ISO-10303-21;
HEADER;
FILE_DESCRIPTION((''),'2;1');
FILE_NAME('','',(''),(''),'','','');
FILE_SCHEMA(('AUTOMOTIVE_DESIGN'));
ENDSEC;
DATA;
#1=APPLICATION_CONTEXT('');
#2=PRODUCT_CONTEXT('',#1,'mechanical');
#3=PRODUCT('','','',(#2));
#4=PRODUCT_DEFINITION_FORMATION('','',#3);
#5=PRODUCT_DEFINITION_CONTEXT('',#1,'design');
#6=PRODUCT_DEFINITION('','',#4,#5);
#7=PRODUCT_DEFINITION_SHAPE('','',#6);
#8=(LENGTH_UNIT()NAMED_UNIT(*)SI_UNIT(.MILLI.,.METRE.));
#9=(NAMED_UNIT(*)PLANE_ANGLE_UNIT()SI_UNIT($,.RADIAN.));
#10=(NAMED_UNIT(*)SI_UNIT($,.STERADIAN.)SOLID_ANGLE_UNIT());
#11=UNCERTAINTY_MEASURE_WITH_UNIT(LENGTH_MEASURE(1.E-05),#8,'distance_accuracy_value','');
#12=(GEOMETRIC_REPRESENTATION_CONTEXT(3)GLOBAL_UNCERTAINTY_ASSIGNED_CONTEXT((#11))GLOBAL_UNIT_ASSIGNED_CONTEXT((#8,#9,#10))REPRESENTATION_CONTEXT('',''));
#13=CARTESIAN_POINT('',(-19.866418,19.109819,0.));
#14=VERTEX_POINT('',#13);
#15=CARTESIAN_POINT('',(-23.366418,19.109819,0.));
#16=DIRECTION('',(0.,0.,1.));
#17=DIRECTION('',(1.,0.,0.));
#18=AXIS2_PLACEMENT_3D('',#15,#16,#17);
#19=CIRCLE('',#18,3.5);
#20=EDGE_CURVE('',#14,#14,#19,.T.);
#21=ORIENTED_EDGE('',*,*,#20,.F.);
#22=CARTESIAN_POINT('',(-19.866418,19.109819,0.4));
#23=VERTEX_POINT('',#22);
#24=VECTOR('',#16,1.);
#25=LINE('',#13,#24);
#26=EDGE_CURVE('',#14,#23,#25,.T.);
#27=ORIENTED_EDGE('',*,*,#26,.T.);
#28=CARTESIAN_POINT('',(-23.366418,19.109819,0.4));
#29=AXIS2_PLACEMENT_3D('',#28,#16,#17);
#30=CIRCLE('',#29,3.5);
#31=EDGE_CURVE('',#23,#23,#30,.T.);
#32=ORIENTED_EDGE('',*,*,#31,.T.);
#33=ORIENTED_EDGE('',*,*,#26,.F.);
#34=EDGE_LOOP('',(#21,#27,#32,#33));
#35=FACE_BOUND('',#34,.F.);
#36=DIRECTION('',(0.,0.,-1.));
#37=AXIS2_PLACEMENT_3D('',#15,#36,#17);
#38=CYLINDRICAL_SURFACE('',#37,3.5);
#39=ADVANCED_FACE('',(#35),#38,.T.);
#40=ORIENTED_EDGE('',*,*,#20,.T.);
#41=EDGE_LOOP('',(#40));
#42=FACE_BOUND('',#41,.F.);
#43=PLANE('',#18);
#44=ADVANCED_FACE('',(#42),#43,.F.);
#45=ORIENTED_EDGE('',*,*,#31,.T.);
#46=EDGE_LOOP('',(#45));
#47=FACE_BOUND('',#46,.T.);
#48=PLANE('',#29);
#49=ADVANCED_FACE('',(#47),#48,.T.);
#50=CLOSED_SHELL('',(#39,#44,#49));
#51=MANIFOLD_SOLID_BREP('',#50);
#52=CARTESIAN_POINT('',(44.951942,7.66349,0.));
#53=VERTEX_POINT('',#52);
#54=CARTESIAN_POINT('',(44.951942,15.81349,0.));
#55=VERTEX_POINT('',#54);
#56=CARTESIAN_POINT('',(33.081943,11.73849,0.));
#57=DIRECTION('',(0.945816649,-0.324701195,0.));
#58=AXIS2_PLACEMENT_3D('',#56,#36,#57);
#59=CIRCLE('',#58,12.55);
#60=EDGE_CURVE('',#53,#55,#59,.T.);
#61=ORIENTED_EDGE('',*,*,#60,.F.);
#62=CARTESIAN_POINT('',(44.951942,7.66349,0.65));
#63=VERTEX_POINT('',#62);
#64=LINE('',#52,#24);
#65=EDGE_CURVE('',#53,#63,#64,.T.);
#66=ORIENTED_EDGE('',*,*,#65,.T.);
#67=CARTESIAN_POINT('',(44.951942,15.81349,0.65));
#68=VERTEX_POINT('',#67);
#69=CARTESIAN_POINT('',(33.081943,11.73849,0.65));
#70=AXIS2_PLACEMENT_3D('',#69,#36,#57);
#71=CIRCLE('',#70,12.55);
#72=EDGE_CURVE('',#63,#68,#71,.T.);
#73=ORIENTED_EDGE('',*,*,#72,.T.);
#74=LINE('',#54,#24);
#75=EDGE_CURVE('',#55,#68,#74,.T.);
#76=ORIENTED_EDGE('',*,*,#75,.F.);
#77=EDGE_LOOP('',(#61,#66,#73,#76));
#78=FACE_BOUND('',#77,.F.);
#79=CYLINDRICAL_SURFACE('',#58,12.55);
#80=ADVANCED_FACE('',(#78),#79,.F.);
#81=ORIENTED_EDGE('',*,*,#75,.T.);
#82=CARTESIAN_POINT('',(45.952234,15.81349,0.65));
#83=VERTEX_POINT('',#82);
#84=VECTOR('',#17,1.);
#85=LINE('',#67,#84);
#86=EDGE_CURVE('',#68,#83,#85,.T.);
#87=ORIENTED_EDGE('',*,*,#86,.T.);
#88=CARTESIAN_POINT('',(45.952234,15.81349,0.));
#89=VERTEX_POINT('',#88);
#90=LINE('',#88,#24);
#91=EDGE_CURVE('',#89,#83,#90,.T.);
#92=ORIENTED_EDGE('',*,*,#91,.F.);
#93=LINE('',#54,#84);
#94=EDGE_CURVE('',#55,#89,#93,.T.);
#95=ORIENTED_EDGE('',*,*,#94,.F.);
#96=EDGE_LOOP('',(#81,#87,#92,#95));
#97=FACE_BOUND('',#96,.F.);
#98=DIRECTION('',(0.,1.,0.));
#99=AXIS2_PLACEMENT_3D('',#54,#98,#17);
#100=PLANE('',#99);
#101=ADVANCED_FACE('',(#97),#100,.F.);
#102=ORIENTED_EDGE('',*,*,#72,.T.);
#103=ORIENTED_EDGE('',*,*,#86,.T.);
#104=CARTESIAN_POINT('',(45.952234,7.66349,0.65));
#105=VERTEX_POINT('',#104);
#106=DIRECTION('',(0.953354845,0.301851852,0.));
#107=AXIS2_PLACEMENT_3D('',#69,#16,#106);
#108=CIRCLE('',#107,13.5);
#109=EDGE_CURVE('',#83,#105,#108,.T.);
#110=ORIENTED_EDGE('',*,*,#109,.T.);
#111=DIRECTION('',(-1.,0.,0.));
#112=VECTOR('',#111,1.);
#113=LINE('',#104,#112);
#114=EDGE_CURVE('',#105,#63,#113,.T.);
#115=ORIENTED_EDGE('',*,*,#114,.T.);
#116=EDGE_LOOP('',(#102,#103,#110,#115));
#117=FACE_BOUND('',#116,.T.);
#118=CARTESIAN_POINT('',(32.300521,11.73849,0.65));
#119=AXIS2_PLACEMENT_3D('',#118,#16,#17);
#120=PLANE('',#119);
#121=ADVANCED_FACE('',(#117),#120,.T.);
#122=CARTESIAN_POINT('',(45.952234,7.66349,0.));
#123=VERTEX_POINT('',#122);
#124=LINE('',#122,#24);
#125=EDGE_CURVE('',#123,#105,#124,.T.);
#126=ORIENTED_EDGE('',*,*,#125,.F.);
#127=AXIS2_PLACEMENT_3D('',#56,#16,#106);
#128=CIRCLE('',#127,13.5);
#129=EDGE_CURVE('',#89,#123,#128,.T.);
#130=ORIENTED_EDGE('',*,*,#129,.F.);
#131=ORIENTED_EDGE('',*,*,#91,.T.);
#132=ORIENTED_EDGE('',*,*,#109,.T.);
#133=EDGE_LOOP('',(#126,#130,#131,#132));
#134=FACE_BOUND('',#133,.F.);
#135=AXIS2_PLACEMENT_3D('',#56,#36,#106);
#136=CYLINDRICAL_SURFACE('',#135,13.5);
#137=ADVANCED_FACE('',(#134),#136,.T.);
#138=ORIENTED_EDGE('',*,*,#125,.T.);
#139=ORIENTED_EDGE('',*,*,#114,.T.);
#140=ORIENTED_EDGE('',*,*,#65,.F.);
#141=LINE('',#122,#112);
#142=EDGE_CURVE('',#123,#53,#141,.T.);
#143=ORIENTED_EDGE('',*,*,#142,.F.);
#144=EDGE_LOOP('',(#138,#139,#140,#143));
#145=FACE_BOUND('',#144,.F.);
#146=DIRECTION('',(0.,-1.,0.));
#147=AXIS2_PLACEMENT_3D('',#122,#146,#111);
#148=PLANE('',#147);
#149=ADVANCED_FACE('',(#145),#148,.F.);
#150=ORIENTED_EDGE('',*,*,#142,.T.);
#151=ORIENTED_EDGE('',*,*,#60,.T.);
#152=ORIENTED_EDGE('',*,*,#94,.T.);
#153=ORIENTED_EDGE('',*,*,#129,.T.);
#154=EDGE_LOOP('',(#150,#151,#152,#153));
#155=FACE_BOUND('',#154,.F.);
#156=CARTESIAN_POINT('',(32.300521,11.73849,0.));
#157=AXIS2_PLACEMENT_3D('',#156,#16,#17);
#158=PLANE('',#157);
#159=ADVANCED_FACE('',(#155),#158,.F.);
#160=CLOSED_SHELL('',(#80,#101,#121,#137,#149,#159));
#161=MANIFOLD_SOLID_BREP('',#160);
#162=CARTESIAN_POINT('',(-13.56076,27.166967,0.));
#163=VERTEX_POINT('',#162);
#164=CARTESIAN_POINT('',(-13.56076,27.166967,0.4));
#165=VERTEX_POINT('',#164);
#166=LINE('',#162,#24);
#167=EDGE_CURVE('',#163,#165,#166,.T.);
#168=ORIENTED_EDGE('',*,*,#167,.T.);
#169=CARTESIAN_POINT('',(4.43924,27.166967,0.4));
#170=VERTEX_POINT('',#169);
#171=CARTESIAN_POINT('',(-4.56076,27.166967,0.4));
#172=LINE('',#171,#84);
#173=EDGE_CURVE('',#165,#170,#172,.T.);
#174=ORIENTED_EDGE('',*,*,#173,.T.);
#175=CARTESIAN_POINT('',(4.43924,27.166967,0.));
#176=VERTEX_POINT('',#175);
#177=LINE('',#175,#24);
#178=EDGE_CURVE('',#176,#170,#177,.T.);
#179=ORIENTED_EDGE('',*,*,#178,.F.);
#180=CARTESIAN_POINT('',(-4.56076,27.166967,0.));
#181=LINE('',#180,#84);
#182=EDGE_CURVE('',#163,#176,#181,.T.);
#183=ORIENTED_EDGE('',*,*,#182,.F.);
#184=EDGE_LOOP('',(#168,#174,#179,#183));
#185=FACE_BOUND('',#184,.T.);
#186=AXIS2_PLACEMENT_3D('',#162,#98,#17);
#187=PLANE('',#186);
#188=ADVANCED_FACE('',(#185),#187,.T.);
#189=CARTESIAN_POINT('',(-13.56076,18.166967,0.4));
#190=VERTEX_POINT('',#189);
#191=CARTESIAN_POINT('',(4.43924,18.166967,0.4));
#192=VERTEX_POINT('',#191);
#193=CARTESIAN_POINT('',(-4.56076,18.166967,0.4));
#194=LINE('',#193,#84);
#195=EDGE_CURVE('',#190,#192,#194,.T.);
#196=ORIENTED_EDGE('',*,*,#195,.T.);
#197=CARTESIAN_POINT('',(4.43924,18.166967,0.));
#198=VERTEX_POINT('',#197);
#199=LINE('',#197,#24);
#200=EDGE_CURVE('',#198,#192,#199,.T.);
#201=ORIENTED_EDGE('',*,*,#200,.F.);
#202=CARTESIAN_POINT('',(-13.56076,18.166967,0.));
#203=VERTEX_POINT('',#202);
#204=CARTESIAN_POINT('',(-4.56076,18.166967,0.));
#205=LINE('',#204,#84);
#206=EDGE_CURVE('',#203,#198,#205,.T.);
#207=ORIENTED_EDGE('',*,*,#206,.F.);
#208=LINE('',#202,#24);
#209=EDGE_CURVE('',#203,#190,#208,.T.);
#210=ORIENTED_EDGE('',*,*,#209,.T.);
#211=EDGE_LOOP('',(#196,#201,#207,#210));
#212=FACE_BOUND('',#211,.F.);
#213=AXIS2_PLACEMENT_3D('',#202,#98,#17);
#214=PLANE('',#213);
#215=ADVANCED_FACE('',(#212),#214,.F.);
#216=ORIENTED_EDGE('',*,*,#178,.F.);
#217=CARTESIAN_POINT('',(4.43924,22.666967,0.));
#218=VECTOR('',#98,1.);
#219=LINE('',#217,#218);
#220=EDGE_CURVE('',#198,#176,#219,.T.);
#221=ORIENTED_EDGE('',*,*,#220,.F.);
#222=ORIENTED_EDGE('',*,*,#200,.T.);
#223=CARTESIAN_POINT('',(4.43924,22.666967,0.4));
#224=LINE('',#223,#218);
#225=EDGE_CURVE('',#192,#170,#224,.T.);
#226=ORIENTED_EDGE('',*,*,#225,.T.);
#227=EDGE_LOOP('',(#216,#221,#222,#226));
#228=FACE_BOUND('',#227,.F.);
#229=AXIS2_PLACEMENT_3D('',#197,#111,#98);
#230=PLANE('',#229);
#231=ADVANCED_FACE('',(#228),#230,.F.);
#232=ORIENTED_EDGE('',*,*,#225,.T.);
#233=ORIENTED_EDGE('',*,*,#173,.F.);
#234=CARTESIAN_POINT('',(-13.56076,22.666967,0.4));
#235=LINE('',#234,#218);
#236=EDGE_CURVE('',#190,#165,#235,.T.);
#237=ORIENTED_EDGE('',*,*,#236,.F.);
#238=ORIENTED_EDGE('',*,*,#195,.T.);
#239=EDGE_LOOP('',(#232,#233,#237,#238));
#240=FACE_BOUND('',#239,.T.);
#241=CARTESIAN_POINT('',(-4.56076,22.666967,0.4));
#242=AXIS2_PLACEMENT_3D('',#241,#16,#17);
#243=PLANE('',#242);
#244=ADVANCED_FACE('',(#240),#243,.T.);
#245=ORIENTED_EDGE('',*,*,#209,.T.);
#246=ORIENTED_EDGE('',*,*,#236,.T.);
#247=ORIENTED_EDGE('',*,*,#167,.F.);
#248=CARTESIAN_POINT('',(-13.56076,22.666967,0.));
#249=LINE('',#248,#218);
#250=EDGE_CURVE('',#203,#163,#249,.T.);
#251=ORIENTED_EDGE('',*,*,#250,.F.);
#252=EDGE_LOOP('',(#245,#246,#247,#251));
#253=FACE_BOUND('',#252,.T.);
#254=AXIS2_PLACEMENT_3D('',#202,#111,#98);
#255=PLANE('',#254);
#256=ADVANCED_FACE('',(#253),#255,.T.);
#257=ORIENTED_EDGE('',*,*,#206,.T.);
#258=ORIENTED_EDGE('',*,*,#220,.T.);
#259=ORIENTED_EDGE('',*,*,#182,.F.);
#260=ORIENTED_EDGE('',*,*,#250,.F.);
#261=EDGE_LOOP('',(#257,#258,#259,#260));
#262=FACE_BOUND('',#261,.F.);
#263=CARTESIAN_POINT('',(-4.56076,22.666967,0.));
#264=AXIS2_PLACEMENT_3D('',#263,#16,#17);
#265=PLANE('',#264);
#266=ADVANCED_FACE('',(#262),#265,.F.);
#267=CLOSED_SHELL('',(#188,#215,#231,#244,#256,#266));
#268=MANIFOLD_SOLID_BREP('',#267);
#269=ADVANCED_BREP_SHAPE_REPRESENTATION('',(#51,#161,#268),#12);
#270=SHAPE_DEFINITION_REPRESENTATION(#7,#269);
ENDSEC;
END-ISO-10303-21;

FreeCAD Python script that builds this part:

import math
import FreeCAD as App
import Part
import Sketcher

V = App.Vector

doc = App.newDocument("Part")
body = doc.addObject("PartDesign::Body", "Body")

# Sketch on XY plane
sketch1 = doc.addObject("Sketcher::SketchObject", "Sketch")
body.addObject(sketch1)
sketch1.AttachmentSupport = (doc.XY_Plane, [""])
sketch1.MapMode = "FlatFace"
sketch1.addGeometry(Part.Circle(V(-23.4, 19.1, 0), V(0, 0, 1), 3.5), False)
sketch1.addConstraint(Sketcher.Constraint("Diameter", 0, 7.0))
sketch1.addConstraint(Sketcher.Constraint("DistanceX", 0, 3, -1, 1, 23.366418))
sketch1.addConstraint(Sketcher.Constraint("DistanceY", -1, 1, 0, 3, 19.109819))
pad1 = doc.addObject("PartDesign::Pad", "Pad")
body.addObject(pad1)
pad1.Profile = sketch1
pad1.Length = 0.4
body2 = doc.addObject("PartDesign::Body", "Body001")

# Sketch on XY plane
sketch2 = doc.addObject("Sketcher::SketchObject", "Sketch001")
body2.addObject(sketch2)
sketch2.AttachmentSupport = (doc.getObject("XY_Plane001"), [""])
sketch2.MapMode = "FlatFace"
sketch2.addGeometry(Part.LineSegment(V(-14, 27, 0), V(-14, 18, 0)), False)
sketch2.addGeometry(Part.LineSegment(V(-14, 18, 0), V(4, 18, 0)), False)
sketch2.addGeometry(Part.LineSegment(V(4, 18, 0), V(4, 27, 0)), False)
sketch2.addGeometry(Part.LineSegment(V(4, 27, 0), V(-14, 27, 0)), False)
sketch2.addConstraint(Sketcher.Constraint("Coincident", 0, 2, 1, 1))
sketch2.addConstraint(Sketcher.Constraint("Coincident", 1, 2, 2, 1))
sketch2.addConstraint(Sketcher.Constraint("Coincident", 2, 2, 3, 1))
sketch2.addConstraint(Sketcher.Constraint("Coincident", 3, 2, 0, 1))
sketch2.addConstraint(Sketcher.Constraint("Vertical", 0))
sketch2.addConstraint(Sketcher.Constraint("Horizontal", 1))
sketch2.addConstraint(Sketcher.Constraint("Vertical", 2))
sketch2.addConstraint(Sketcher.Constraint("Horizontal", 3))
sketch2.addConstraint(Sketcher.Constraint("DistanceX", 1, 1, 1, 2, 18.0))
sketch2.addConstraint(Sketcher.Constraint("DistanceY", 0, 2, 0, 1, 9.0))
sketch2.addConstraint(Sketcher.Constraint("DistanceX", 0, 2, -1, 1, 13.56076))
sketch2.addConstraint(Sketcher.Constraint("DistanceY", -1, 1, 0, 2, 18.166967))
pad2 = doc.addObject("PartDesign::Pad", "Pad001")
body2.addObject(pad2)
pad2.Profile = sketch2
pad2.Length = 0.4
body3 = doc.addObject("PartDesign::Body", "Body002")

# Sketch on XY plane
sketch3 = doc.addObject("Sketcher::SketchObject", "Sketch002")
body3.addObject(sketch3)
sketch3.AttachmentSupport = (doc.getObject("XY_Plane002"), [""])
sketch3.MapMode = "FlatFace"
sketch3.addGeometry(Part.ArcOfCircle(Part.Circle(V(33.1, 11.7, 0), V(0, 0, 1), 12.6), math.radians(19), math.radians(341)), False)
sketch3.addGeometry(Part.LineSegment(V(45, 15.8, 0), V(46, 15.8, 0)), False)
sketch3.addGeometry(Part.ArcOfCircle(Part.Circle(V(33.1, 11.7, 0), V(0, 0, 1), 13.5), math.radians(18), math.radians(342)), False)
sketch3.addGeometry(Part.LineSegment(V(46, 7.7, 0), V(45, 7.7, 0)), False)
sketch3.addConstraint(Sketcher.Constraint("Coincident", 0, 1, 1, 1))
sketch3.addConstraint(Sketcher.Constraint("Coincident", 1, 2, 2, 1))
sketch3.addConstraint(Sketcher.Constraint("Coincident", 2, 2, 3, 1))
sketch3.addConstraint(Sketcher.Constraint("Coincident", 3, 2, 0, 2))
sketch3.addConstraint(Sketcher.Constraint("Horizontal", 1))
sketch3.addConstraint(Sketcher.Constraint("Horizontal", 3))
sketch3.addConstraint(Sketcher.Constraint("Coincident", 2, 3, 0, 3))
sketch3.addConstraint(Sketcher.Constraint("Vertical", 1, 2, 2, 2))
sketch3.addConstraint(Sketcher.Constraint("Radius", 2, 13.5))
sketch3.addConstraint(Sketcher.Constraint("Radius", 0, 12.55))
sketch3.addConstraint(Sketcher.Constraint("DistanceX", 0, 3, 0, 1, 11.869999))
sketch3.addConstraint(Sketcher.Constraint("DistanceY", -1, 1, 0, 3, 11.73849))
sketch3.addConstraint(Sketcher.Constraint("DistanceX", -1, 1, 0, 3, 33.081943))
pad3 = doc.addObject("PartDesign::Pad", "Pad002")
body3.addObject(pad3)
pad3.Profile = sketch3
pad3.Length = 0.65

doc.recompute()
